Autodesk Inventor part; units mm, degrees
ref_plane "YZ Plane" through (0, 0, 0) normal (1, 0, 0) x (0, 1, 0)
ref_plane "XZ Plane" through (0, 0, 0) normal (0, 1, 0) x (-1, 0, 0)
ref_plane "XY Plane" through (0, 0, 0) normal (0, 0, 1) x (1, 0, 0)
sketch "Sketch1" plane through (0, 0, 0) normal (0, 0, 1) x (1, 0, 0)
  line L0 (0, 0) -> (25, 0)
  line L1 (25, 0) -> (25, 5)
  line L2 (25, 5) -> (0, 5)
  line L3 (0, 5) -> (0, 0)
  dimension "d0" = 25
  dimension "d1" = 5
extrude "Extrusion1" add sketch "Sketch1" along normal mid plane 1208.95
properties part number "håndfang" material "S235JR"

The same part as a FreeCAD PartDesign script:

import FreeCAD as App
import Part
import Sketcher

doc = App.newDocument("Part")
params = doc.addObject("Spreadsheet::Sheet", "Params")
for row, (alias, value) in enumerate([
    ("sketch1_width", "25 mm"),
    ("sketch1_height", "5 mm"),
    ("pad1_length", "1208.95 mm"),
], start=1):
    params.set(f"A{row}", alias)
    params.set(f"B{row}", "=" + value)
    params.setAlias(f"B{row}", alias)

body = doc.addObject("PartDesign::Body", "Body")

sketch1 = body.newObject("Sketcher::SketchObject", "Sketch")
sketch1.AttachmentSupport = (doc.getObject("XY_Plane"), [""])
sketch1.MapMode = "FlatFace"
sketch1.addGeometry(Part.LineSegment(App.Vector(0, 5, 0), App.Vector(0, 0, 0)), False)
sketch1.addGeometry(Part.LineSegment(App.Vector(0, 0, 0), App.Vector(25, 0, 0)), False)
sketch1.addGeometry(Part.LineSegment(App.Vector(25, 0, 0), App.Vector(25, 5, 0)), False)
sketch1.addGeometry(Part.LineSegment(App.Vector(25, 5, 0), App.Vector(0, 5, 0)), False)
sketch1.addConstraint(Sketcher.Constraint("Coincident", 0, 2, 1, 1))
sketch1.addConstraint(Sketcher.Constraint("Coincident", 1, 2, 2, 1))
sketch1.addConstraint(Sketcher.Constraint("Coincident", 2, 2, 3, 1))
sketch1.addConstraint(Sketcher.Constraint("Coincident", 3, 2, 0, 1))
sketch1.addConstraint(Sketcher.Constraint("Vertical", 0))
sketch1.addConstraint(Sketcher.Constraint("Horizontal", 1))
sketch1.addConstraint(Sketcher.Constraint("Vertical", 2))
sketch1.addConstraint(Sketcher.Constraint("Horizontal", 3))
sketch1.addConstraint(Sketcher.Constraint("Coincident", 0, 2, -1, 1))
sketch1.addConstraint(Sketcher.Constraint("DistanceX", 1, 1, 1, 2, 25.0))
sketch1.addConstraint(Sketcher.Constraint("DistanceY", 0, 2, 0, 1, 5.0))
sketch1.setExpression("Constraints[9]", "Params.sketch1_width")
sketch1.setExpression("Constraints[10]", "Params.sketch1_height")
pad1 = body.newObject("PartDesign::Pad", "Pad")
pad1.Profile = sketch1
pad1.setExpression("Length", "Params.pad1_length")
pad1.Midplane = True

doc.recompute()
